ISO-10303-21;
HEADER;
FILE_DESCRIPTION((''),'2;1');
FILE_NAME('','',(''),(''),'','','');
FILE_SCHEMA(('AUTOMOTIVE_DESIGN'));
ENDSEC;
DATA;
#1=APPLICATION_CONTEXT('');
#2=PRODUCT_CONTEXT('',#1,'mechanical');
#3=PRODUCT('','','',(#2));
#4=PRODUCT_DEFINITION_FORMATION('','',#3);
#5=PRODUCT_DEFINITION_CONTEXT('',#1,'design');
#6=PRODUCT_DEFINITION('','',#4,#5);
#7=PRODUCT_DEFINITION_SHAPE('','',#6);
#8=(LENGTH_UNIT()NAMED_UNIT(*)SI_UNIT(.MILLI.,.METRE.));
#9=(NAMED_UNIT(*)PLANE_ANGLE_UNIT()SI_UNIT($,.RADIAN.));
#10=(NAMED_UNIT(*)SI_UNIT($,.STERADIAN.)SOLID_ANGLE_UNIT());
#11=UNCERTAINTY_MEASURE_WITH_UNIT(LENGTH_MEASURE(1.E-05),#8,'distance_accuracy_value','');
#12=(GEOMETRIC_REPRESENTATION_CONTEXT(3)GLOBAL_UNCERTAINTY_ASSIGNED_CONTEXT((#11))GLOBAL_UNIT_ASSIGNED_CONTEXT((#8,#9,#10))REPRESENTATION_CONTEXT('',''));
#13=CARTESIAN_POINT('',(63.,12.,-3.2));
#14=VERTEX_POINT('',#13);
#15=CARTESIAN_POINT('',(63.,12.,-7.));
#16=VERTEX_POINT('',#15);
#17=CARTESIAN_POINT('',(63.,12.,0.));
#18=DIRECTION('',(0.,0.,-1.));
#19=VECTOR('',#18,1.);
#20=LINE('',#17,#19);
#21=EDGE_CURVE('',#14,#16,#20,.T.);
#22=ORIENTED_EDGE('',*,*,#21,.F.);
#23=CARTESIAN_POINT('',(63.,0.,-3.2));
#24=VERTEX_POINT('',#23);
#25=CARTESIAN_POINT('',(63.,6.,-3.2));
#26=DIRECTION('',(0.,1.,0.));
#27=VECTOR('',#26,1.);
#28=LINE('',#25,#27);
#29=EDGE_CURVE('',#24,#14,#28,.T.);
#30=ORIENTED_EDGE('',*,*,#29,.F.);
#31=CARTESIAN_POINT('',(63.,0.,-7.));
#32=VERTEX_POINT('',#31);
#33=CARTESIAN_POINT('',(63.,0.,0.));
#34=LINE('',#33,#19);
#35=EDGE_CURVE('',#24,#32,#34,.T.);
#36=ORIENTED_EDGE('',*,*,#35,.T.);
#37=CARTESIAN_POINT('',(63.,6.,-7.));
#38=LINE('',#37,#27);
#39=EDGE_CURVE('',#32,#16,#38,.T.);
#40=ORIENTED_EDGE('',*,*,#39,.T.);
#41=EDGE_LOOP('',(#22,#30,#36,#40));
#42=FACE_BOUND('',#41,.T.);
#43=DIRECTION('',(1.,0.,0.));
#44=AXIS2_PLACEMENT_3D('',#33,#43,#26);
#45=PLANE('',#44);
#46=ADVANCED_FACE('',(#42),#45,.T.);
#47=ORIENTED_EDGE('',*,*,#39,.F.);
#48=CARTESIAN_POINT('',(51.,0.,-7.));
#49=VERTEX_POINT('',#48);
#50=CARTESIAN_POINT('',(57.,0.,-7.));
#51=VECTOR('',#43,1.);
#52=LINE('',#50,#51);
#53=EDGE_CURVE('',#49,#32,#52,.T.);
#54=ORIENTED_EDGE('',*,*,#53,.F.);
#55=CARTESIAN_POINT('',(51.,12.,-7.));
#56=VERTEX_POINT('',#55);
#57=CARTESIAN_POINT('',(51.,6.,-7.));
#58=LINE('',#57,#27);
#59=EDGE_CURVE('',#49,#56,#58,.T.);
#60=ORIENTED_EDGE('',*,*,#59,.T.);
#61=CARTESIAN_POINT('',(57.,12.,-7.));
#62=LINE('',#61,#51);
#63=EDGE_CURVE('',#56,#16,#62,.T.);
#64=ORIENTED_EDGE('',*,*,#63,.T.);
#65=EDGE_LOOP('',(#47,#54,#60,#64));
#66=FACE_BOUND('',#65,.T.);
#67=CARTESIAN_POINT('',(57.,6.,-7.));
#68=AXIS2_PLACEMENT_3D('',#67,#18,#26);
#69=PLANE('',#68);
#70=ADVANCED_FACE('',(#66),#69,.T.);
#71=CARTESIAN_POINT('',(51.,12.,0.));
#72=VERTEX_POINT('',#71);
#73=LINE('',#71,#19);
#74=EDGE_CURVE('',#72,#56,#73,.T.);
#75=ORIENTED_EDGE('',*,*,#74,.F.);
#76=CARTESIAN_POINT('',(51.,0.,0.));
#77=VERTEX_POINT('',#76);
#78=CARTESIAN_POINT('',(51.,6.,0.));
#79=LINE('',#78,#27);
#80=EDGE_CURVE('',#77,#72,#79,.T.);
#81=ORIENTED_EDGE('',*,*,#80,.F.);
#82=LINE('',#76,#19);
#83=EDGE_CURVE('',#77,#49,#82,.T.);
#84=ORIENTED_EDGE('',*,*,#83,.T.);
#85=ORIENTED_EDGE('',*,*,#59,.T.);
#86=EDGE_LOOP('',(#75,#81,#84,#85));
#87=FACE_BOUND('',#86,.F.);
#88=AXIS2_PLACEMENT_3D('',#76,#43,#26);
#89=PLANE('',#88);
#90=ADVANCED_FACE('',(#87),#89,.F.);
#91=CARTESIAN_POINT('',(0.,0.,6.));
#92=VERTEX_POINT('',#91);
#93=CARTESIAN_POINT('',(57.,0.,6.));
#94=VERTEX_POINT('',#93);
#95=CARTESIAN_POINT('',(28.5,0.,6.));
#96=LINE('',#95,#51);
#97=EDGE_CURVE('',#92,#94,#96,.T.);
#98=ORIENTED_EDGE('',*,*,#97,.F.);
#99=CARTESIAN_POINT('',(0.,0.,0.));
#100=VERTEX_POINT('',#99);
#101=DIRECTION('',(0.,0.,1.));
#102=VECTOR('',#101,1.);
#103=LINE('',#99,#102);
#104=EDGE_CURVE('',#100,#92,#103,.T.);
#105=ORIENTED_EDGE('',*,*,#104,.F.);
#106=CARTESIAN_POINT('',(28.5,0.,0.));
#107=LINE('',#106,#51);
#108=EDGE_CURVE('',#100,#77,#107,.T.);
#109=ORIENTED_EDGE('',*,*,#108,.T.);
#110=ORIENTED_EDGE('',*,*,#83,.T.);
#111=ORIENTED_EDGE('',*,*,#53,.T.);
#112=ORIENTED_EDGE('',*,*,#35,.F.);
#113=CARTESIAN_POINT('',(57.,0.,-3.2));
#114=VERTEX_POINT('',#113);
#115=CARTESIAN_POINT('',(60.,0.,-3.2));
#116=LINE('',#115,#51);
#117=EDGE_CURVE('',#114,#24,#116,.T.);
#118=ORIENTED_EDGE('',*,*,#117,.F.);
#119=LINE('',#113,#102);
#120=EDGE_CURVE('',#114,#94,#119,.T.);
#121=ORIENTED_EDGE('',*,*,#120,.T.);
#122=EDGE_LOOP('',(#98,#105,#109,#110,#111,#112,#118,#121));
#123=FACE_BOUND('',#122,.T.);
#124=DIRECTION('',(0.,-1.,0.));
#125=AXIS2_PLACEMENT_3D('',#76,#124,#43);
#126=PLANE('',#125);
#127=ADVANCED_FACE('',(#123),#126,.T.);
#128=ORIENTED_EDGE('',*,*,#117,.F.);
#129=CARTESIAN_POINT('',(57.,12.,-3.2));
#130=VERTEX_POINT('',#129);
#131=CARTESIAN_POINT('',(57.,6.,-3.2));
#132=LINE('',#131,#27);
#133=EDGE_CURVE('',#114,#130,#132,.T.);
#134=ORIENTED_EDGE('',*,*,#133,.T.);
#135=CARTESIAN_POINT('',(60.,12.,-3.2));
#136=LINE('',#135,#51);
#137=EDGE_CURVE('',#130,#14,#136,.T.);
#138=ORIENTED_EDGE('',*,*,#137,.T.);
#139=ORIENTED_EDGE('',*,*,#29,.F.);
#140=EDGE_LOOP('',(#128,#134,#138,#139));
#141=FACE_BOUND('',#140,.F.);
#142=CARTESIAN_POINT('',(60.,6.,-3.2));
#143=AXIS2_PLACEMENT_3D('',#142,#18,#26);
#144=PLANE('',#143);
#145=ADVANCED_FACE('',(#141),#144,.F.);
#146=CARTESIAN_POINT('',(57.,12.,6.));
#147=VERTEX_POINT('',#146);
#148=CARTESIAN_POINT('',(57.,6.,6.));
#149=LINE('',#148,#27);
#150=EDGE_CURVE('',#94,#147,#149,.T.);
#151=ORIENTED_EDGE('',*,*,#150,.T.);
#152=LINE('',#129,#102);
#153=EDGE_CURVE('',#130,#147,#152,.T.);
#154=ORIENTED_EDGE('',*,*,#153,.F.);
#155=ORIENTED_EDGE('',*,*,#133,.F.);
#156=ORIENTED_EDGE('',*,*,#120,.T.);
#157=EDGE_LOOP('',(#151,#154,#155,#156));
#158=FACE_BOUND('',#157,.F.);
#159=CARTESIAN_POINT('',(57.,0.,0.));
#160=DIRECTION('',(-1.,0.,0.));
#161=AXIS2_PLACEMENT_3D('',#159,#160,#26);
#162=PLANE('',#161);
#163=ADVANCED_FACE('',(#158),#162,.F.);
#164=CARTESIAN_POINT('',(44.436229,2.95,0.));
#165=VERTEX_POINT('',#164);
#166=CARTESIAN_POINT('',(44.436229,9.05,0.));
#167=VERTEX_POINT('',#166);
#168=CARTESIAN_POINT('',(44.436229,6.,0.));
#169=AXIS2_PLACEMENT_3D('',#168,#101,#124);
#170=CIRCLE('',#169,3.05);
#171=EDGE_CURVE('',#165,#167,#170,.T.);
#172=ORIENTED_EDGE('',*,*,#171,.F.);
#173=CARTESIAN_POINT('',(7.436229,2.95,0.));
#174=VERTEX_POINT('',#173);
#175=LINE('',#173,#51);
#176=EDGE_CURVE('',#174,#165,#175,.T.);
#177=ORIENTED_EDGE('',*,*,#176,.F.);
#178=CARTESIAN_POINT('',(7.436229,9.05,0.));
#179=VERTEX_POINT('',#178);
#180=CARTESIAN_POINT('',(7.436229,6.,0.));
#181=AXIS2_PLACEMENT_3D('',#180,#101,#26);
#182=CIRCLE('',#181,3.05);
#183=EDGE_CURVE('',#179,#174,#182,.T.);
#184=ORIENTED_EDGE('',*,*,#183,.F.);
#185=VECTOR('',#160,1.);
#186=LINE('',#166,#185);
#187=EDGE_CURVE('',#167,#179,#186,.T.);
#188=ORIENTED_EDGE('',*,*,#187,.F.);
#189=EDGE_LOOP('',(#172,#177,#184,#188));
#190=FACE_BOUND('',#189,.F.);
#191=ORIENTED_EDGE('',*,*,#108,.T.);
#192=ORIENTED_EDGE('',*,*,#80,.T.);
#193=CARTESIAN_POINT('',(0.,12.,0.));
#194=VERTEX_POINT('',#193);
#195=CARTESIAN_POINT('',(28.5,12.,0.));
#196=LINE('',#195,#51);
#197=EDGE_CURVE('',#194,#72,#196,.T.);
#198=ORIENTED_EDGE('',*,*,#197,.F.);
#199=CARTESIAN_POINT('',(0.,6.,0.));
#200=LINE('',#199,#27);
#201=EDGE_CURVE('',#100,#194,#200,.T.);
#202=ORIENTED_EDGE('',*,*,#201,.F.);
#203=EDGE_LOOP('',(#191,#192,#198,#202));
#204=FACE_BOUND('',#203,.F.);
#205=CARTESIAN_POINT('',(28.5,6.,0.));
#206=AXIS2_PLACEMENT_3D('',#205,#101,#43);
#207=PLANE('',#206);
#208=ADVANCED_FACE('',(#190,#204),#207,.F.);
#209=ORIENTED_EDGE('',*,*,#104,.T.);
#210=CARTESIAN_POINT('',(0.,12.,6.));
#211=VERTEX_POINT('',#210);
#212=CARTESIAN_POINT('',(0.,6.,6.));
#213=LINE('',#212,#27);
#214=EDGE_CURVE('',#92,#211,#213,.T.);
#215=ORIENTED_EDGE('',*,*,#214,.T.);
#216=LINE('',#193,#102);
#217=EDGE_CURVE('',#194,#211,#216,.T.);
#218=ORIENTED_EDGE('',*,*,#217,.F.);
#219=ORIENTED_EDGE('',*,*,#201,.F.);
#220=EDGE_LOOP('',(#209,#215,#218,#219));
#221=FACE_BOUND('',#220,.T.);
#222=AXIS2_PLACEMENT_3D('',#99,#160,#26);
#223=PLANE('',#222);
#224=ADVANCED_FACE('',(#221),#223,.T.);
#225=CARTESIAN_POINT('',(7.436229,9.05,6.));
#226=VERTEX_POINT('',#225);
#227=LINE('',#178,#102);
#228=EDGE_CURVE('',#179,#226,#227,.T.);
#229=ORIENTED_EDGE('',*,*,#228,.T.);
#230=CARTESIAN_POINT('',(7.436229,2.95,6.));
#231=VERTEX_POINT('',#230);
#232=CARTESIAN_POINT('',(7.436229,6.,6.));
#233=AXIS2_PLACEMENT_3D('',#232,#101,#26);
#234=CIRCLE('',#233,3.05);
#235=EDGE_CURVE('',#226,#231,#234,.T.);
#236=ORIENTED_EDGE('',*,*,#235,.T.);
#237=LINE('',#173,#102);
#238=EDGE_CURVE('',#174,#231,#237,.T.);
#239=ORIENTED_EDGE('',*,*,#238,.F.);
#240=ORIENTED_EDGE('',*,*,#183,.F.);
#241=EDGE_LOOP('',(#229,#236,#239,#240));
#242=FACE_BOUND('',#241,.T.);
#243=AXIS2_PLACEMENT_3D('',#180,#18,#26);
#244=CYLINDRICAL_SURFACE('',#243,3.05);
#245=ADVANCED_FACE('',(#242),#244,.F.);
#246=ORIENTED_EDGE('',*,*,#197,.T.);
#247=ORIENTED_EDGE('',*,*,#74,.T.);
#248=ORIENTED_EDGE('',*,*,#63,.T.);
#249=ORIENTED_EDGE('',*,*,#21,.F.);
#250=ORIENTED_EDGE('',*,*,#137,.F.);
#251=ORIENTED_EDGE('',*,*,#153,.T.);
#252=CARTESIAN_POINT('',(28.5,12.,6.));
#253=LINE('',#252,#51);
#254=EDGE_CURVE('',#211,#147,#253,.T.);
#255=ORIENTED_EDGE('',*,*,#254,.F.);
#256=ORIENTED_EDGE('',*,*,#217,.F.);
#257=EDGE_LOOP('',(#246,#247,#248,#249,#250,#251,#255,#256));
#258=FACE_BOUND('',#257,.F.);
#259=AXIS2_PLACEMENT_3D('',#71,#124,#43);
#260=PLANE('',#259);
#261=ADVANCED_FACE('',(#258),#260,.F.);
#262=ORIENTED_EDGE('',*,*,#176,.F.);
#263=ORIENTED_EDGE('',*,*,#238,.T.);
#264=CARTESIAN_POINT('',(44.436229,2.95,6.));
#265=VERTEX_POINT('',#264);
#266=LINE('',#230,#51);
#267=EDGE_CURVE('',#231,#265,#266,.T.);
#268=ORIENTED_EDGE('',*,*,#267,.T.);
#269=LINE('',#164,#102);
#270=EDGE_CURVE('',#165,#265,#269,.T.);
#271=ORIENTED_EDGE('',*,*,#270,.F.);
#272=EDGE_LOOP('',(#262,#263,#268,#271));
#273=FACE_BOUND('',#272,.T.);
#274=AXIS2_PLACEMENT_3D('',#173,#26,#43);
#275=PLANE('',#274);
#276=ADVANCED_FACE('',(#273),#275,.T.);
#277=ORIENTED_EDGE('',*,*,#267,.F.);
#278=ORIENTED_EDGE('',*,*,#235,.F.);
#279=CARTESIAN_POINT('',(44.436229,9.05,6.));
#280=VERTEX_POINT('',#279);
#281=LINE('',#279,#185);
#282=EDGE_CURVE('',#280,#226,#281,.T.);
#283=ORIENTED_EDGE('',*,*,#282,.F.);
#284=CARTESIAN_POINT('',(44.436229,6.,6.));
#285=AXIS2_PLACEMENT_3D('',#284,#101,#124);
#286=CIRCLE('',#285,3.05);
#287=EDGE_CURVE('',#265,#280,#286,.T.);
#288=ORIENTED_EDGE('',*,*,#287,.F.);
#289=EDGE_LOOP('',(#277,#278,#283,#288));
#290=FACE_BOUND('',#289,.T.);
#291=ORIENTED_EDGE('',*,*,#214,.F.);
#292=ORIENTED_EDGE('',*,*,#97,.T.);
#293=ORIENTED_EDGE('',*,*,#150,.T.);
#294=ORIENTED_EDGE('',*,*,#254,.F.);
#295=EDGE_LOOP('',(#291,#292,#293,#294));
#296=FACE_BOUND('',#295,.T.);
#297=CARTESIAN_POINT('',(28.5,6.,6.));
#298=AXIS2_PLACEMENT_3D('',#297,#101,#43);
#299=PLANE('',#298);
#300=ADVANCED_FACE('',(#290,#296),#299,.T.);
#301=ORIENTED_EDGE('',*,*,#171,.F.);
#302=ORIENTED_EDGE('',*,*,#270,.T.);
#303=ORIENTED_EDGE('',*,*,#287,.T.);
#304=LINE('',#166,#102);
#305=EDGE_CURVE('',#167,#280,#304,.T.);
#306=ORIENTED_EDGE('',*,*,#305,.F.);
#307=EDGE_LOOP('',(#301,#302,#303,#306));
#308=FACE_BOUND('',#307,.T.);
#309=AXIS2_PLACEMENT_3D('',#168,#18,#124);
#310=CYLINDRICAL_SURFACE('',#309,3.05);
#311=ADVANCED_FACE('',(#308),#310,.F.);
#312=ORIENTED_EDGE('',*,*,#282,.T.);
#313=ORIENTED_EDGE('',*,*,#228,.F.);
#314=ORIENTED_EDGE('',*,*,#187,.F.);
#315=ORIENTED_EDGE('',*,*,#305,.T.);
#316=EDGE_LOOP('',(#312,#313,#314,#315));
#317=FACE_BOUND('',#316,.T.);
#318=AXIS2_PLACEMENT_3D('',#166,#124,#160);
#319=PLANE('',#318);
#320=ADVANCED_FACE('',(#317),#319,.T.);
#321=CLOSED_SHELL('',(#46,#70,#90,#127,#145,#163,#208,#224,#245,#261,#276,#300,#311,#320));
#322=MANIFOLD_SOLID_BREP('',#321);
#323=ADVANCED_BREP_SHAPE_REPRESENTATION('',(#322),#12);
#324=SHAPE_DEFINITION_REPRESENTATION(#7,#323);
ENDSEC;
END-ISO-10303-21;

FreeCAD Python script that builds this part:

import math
import FreeCAD as App
import Part
import Sketcher

V = App.Vector

doc = App.newDocument("Part")
body = doc.addObject("PartDesign::Body", "Body")

# Sketch on XY plane
sketch1 = body.newObject("Sketcher::SketchObject", "Sketch")
sketch1.AttachmentSupport = (doc.getObject("XY_Plane"), [""])
sketch1.MapMode = "FlatFace"
sketch1.addGeometry([
    Part.LineSegment(V(0, 12, 0), V(0, 0, 0)),  # 0
    Part.LineSegment(V(0, 0, 0), V(57, 0, 0)),  # 1
    Part.LineSegment(V(57, 0, 0), V(57, 12, 0)),  # 2
    Part.LineSegment(V(57, 12, 0), V(0, 12, 0)),  # 3
    Part.LineSegment(V(7.4, 9.1, 0), V(44.4, 9.1, 0)),  # 4
    Part.ArcOfCircle(Part.Circle(V(44.4, 6, 0), V(0, 0, 1), 3), math.radians(-90), math.radians(90)),  # 5
    Part.LineSegment(V(44.4, 3, 0), V(7.4, 3, 0)),  # 6
    Part.ArcOfCircle(Part.Circle(V(7.4, 6, 0), V(0, 0, 1), 3), math.radians(90), math.radians(270)),  # 7
], False)
sketch1.addConstraint([
    Sketcher.Constraint("Coincident", 0, 2, 1, 1),
    Sketcher.Constraint("Coincident", 1, 2, 2, 1),
    Sketcher.Constraint("Coincident", 2, 2, 3, 1),
    Sketcher.Constraint("Coincident", 3, 2, 0, 1),
    Sketcher.Constraint("Tangent", 4, 2, 5, 2),
    Sketcher.Constraint("Tangent", 5, 1, 6, 1),
    Sketcher.Constraint("Tangent", 6, 2, 7, 2),
    Sketcher.Constraint("Tangent", 7, 1, 4, 1),
    Sketcher.Constraint("Vertical", 0),
    Sketcher.Constraint("Horizontal", 1),
    Sketcher.Constraint("Vertical", 2),
    Sketcher.Constraint("Horizontal", 3),
    Sketcher.Constraint("Horizontal", 4),
    Sketcher.Constraint("Horizontal", 6),
    Sketcher.Constraint("Coincident", 0, 2, -1, 1),
    Sketcher.Constraint("DistanceX", 1, 1, 1, 2, 57.0),
    Sketcher.Constraint("DistanceX", 4, 1, 4, 2, 37.0),
    Sketcher.Constraint("DistanceY", 0, 2, 0, 1, 12.0),
    Sketcher.Constraint("Radius", 5, 3.05),
    Sketcher.Constraint("DistanceY", -1, 1, 5, 3, 6.0),
    Sketcher.Constraint("DistanceX", -1, 1, 5, 3, 44.436229),
])
pad1 = body.newObject("PartDesign::Pad", "Pad")
pad1.Profile = sketch1
pad1.Length = 6

# Sketch on XY plane
sketch2 = body.newObject("Sketcher::SketchObject", "Sketch001")
sketch2.AttachmentSupport = (doc.getObject("XY_Plane"), [""])
sketch2.MapMode = "FlatFace"
sketch2.addGeometry([
    Part.LineSegment(V(63, 0, 0), V(51, 0, 0)),
    Part.LineSegment(V(51, 0, 0), V(51, 12, 0)),
    Part.LineSegment(V(51, 12, 0), V(63, 12, 0)),
    Part.LineSegment(V(63, 12, 0), V(63, 0, 0)),
], False)
sketch2.addConstraint([
    Sketcher.Constraint("Coincident", 0, 2, 1, 1),
    Sketcher.Constraint("Coincident", 1, 2, 2, 1),
    Sketcher.Constraint("Coincident", 2, 2, 3, 1),
    Sketcher.Constraint("Coincident", 3, 2, 0, 1),
    Sketcher.Constraint("Horizontal", 0),
    Sketcher.Constraint("Vertical", 1),
    Sketcher.Constraint("Horizontal", 2),
    Sketcher.Constraint("Vertical", 3),
    Sketcher.Constraint("PointOnObject", 0, 2, -1),
    Sketcher.Constraint("Equal", 2, 1),
    Sketcher.Constraint("DistanceX", 0, 2, 0, 1, 12.0),
    Sketcher.Constraint("DistanceX", -1, 1, 0, 2, 51.0),
])
pad2 = body.newObject("PartDesign::Pad", "Pad001")
pad2.Profile = sketch2
pad2.Length = 7
pad2.Reversed = True

# Sketch on XY plane
sketch3 = body.newObject("Sketcher::SketchObject", "Sketch002")
sketch3.AttachmentSupport = (doc.getObject("XY_Plane"), [""])
sketch3.MapMode = "FlatFace"
sketch3.addGeometry([
    Part.LineSegment(V(63, 0, 0), V(57, 0, 0)),
    Part.LineSegment(V(57, 0, 0), V(57, 12, 0)),
    Part.LineSegment(V(57, 12, 0), V(63, 12, 0)),
    Part.LineSegment(V(63, 12, 0), V(63, 0, 0)),
], False)
sketch3.addConstraint([
    Sketcher.Constraint("Coincident", 0, 2, 1, 1),
    Sketcher.Constraint("Coincident", 1, 2, 2, 1),
    Sketcher.Constraint("Coincident", 2, 2, 3, 1),
    Sketcher.Constraint("Coincident", 3, 2, 0, 1),
    Sketcher.Constraint("Horizontal", 0),
    Sketcher.Constraint("Vertical", 1),
    Sketcher.Constraint("Horizontal", 2),
    Sketcher.Constraint("Vertical", 3),
    Sketcher.Constraint("PointOnObject", 0, 2, -1),
    Sketcher.Constraint("DistanceX", 0, 2, 0, 1, 6.0),
    Sketcher.Constraint("DistanceY", 1, 1, 1, 2, 12.0),
    Sketcher.Constraint("DistanceX", -1, 1, 0, 2, 57.0),
])
pocket1 = body.newObject("PartDesign::Pocket", "Pocket")
pocket1.Profile = sketch3
pocket1.Length = 3.2

doc.recompute()
